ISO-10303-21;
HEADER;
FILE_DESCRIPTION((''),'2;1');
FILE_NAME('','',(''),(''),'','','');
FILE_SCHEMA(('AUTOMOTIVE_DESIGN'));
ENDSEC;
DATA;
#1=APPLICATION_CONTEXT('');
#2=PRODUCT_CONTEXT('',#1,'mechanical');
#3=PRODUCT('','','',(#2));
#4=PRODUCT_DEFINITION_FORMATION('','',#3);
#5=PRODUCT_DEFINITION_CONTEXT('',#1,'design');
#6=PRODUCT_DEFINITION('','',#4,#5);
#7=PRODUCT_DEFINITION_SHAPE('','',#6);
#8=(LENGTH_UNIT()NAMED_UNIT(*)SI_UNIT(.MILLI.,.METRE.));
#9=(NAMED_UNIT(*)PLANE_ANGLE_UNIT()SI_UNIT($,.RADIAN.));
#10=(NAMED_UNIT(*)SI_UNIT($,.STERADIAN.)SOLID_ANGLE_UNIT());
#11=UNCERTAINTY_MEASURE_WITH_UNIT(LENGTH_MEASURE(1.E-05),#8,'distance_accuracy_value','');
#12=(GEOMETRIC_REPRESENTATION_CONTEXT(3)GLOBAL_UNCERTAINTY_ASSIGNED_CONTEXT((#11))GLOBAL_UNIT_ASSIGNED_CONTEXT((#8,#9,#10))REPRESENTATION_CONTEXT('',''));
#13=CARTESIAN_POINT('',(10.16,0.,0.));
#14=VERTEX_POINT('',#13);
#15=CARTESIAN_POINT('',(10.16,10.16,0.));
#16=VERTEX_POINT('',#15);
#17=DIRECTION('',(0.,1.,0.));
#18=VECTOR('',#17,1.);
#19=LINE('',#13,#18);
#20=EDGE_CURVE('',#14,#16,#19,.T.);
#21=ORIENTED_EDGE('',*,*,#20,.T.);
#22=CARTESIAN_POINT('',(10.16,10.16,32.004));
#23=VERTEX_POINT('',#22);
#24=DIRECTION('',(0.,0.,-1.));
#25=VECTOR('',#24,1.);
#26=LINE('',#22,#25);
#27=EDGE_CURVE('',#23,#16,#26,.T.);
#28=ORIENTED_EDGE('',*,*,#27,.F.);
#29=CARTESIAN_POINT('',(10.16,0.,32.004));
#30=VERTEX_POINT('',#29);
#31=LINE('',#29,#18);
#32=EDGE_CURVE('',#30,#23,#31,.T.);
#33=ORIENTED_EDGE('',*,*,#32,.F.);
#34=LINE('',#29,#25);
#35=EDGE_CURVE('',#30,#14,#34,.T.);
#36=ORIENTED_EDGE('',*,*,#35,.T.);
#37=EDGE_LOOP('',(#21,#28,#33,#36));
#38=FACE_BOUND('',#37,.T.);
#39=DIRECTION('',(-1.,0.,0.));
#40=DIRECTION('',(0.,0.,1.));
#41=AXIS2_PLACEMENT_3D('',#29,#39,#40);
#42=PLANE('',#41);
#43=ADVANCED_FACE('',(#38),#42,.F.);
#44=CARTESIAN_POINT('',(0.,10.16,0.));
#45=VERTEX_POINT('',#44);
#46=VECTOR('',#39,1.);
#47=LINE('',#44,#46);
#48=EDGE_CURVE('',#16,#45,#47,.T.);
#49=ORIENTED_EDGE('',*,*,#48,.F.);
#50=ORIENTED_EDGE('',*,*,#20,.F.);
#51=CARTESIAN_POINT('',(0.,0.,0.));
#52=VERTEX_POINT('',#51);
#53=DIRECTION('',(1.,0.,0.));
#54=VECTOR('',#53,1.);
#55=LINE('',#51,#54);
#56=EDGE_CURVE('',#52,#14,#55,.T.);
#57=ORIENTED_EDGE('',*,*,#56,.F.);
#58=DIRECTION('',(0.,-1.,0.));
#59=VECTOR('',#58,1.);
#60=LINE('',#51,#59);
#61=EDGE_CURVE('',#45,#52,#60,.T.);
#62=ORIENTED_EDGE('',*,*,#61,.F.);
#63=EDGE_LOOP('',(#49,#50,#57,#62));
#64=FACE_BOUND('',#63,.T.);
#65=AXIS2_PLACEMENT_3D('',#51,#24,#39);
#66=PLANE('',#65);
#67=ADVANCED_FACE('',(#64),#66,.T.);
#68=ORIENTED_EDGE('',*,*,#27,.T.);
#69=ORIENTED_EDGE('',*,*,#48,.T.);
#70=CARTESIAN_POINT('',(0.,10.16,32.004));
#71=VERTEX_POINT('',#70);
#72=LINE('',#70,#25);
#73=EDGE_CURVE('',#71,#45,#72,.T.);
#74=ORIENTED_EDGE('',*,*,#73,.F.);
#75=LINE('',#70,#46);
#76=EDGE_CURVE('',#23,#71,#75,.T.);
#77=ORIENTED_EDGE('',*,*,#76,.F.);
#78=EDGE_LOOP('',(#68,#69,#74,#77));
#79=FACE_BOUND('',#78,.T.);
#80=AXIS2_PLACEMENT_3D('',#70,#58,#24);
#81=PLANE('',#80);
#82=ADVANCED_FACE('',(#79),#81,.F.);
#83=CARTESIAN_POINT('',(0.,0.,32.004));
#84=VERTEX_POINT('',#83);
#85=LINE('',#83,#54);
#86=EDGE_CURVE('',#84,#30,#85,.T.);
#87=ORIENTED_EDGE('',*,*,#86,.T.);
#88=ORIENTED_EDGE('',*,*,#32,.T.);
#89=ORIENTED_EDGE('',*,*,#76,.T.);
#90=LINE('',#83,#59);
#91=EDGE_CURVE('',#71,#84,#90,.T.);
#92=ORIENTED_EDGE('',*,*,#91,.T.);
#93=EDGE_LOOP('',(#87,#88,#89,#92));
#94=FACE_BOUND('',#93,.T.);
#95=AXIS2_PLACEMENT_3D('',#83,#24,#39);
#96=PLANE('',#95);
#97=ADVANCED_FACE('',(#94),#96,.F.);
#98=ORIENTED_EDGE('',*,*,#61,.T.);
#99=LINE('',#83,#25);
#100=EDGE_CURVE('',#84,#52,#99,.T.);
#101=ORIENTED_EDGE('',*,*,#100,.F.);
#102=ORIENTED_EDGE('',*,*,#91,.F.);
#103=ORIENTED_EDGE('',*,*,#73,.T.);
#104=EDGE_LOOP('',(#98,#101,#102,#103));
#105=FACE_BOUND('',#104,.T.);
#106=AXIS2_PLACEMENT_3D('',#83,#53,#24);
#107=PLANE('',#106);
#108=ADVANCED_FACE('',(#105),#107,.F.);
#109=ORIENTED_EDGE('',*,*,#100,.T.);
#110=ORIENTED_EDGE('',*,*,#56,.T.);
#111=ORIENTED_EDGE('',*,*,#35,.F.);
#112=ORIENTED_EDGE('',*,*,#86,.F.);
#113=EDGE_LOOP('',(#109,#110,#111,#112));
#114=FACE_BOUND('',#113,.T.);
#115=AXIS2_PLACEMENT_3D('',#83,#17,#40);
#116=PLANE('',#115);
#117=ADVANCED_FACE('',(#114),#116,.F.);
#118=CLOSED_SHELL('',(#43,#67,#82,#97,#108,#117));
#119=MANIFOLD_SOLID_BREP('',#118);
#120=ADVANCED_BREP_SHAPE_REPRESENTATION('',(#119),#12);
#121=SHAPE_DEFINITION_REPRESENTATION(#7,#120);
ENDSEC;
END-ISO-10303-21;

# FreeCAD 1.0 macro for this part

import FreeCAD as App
import Part
import Sketcher
Q = App.Units.Quantity


def add_polygon(sketch, points):
    """Adds a closed chain of lines whose ends are joined by coincident constraints."""
    first, n = sketch.GeometryCount, len(points)
    for a, b in zip(points, points[1:] + points[:1]):
        sketch.addGeometry(Part.LineSegment(App.Vector(*a, 0), App.Vector(*b, 0)), False)
    for i in range(n):
        sketch.addConstraint(Sketcher.Constraint("Coincident", first + i, 2, first + (i + 1) % n, 1))

doc = App.newDocument("Part")
body = doc.addObject("PartDesign::Body", "Body")

# Sketch on XY plane
sketch1 = body.newObject("Sketcher::SketchObject", "Sketch")
sketch1.AttachmentSupport = (doc.getObject("XY_Plane"), [""])
sketch1.MapMode = "FlatFace"
add_polygon(sketch1, [(0, 10), (0, 0), (10, 0), (10, 10)])  # lines 0-3
sketch1.addConstraint([
    Sketcher.Constraint("Vertical", 0),
    Sketcher.Constraint("Horizontal", 1),
    Sketcher.Constraint("Vertical", 2),
    Sketcher.Constraint("Horizontal", 3),
    Sketcher.Constraint("Coincident", 0, 2, -1, 1),
    Sketcher.Constraint("Equal", 3, 0),
    Sketcher.Constraint("DistanceX", 1, 1, 1, 2, Q("0.4 in")),
])
pad1 = body.newObject("PartDesign::Pad", "Pad")
pad1.Profile = sketch1
pad1.Length = Q("1.26 in")

doc.recompute()
